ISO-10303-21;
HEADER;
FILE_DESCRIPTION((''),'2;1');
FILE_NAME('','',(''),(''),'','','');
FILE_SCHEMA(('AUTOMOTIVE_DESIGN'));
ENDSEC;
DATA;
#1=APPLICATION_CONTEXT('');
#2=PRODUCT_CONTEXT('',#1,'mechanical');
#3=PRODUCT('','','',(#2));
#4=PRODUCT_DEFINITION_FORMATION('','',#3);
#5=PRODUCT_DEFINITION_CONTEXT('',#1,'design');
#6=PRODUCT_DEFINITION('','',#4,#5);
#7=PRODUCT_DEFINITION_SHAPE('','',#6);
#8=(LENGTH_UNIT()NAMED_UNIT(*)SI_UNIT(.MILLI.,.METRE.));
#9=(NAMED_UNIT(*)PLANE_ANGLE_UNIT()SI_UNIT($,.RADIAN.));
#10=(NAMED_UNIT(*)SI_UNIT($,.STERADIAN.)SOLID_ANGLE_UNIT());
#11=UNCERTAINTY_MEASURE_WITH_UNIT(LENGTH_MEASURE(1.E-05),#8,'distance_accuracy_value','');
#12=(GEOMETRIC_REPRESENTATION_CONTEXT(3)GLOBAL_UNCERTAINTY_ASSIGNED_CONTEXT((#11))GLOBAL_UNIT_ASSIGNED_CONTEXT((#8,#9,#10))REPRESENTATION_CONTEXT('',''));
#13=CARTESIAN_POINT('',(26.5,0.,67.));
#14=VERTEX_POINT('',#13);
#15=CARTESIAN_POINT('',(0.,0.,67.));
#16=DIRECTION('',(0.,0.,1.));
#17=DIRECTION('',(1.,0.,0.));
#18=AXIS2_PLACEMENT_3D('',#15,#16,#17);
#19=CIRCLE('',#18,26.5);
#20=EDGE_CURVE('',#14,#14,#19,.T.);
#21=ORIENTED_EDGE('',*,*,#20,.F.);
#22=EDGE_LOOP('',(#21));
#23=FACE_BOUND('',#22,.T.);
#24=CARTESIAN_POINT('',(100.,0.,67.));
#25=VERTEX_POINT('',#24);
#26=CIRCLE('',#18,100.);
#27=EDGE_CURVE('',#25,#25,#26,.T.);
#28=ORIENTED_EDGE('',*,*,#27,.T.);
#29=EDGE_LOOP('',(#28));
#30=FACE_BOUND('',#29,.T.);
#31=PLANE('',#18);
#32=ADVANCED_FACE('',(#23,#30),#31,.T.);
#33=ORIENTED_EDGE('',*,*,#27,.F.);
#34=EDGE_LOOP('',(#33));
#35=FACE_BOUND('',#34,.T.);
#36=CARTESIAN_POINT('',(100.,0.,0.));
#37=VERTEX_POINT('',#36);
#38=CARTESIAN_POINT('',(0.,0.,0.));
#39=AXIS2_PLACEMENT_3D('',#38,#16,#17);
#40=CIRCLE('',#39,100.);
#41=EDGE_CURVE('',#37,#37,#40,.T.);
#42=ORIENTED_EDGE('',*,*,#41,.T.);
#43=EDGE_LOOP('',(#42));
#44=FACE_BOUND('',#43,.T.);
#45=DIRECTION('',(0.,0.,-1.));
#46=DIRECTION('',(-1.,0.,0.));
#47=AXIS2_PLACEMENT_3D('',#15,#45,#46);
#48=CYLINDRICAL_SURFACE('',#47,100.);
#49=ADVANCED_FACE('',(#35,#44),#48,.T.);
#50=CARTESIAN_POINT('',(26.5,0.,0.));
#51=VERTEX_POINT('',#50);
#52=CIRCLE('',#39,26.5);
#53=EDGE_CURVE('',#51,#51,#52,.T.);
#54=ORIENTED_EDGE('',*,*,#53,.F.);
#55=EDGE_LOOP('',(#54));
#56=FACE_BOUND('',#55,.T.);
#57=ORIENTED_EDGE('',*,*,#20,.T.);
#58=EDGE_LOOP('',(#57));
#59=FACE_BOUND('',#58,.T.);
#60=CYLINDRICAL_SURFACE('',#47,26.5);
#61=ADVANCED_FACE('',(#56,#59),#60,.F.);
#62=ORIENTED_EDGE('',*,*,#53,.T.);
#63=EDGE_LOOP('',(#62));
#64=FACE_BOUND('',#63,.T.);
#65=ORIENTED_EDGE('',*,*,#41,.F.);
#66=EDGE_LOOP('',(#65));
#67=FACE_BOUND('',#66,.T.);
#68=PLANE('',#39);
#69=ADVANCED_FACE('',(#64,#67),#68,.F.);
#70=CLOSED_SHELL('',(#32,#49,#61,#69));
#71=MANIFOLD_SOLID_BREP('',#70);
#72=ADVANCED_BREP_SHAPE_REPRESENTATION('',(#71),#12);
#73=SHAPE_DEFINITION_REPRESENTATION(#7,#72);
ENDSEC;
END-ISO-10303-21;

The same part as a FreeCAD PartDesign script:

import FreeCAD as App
import Part
import Sketcher
from FreeCAD import Vector
Q = App.Units.Quantity

doc = App.newDocument("Part")
body = doc.addObject("PartDesign::Body", "Body")

# Sketch on XY plane
sketch1 = doc.addObject("Sketcher::SketchObject", "Sketch")
body.addObject(sketch1)
sketch1.AttachmentSupport = (doc.XY_Plane, [""])
sketch1.MapMode = "FlatFace"
sketch1.addGeometry(Part.Circle(Vector(0, 0, 0), Vector(0, 0, 1), 100), False)
sketch1.addGeometry(Part.Circle(Vector(0, 0, 0), Vector(0, 0, 1), 26), False)
sketch1.addConstraint(Sketcher.Constraint("Coincident", 0, 3, -1, 1))
sketch1.addConstraint(Sketcher.Constraint("Coincident", 1, 3, -1, 1))
sketch1.addConstraint(Sketcher.Constraint("Diameter", 0, Q("200 mm")))
sketch1.addConstraint(Sketcher.Constraint("Diameter", 1, Q("53 mm")))
pad1 = doc.addObject("PartDesign::Pad", "Pad")
body.addObject(pad1)
pad1.Profile = sketch1
pad1.Length = 67

doc.recompute()
